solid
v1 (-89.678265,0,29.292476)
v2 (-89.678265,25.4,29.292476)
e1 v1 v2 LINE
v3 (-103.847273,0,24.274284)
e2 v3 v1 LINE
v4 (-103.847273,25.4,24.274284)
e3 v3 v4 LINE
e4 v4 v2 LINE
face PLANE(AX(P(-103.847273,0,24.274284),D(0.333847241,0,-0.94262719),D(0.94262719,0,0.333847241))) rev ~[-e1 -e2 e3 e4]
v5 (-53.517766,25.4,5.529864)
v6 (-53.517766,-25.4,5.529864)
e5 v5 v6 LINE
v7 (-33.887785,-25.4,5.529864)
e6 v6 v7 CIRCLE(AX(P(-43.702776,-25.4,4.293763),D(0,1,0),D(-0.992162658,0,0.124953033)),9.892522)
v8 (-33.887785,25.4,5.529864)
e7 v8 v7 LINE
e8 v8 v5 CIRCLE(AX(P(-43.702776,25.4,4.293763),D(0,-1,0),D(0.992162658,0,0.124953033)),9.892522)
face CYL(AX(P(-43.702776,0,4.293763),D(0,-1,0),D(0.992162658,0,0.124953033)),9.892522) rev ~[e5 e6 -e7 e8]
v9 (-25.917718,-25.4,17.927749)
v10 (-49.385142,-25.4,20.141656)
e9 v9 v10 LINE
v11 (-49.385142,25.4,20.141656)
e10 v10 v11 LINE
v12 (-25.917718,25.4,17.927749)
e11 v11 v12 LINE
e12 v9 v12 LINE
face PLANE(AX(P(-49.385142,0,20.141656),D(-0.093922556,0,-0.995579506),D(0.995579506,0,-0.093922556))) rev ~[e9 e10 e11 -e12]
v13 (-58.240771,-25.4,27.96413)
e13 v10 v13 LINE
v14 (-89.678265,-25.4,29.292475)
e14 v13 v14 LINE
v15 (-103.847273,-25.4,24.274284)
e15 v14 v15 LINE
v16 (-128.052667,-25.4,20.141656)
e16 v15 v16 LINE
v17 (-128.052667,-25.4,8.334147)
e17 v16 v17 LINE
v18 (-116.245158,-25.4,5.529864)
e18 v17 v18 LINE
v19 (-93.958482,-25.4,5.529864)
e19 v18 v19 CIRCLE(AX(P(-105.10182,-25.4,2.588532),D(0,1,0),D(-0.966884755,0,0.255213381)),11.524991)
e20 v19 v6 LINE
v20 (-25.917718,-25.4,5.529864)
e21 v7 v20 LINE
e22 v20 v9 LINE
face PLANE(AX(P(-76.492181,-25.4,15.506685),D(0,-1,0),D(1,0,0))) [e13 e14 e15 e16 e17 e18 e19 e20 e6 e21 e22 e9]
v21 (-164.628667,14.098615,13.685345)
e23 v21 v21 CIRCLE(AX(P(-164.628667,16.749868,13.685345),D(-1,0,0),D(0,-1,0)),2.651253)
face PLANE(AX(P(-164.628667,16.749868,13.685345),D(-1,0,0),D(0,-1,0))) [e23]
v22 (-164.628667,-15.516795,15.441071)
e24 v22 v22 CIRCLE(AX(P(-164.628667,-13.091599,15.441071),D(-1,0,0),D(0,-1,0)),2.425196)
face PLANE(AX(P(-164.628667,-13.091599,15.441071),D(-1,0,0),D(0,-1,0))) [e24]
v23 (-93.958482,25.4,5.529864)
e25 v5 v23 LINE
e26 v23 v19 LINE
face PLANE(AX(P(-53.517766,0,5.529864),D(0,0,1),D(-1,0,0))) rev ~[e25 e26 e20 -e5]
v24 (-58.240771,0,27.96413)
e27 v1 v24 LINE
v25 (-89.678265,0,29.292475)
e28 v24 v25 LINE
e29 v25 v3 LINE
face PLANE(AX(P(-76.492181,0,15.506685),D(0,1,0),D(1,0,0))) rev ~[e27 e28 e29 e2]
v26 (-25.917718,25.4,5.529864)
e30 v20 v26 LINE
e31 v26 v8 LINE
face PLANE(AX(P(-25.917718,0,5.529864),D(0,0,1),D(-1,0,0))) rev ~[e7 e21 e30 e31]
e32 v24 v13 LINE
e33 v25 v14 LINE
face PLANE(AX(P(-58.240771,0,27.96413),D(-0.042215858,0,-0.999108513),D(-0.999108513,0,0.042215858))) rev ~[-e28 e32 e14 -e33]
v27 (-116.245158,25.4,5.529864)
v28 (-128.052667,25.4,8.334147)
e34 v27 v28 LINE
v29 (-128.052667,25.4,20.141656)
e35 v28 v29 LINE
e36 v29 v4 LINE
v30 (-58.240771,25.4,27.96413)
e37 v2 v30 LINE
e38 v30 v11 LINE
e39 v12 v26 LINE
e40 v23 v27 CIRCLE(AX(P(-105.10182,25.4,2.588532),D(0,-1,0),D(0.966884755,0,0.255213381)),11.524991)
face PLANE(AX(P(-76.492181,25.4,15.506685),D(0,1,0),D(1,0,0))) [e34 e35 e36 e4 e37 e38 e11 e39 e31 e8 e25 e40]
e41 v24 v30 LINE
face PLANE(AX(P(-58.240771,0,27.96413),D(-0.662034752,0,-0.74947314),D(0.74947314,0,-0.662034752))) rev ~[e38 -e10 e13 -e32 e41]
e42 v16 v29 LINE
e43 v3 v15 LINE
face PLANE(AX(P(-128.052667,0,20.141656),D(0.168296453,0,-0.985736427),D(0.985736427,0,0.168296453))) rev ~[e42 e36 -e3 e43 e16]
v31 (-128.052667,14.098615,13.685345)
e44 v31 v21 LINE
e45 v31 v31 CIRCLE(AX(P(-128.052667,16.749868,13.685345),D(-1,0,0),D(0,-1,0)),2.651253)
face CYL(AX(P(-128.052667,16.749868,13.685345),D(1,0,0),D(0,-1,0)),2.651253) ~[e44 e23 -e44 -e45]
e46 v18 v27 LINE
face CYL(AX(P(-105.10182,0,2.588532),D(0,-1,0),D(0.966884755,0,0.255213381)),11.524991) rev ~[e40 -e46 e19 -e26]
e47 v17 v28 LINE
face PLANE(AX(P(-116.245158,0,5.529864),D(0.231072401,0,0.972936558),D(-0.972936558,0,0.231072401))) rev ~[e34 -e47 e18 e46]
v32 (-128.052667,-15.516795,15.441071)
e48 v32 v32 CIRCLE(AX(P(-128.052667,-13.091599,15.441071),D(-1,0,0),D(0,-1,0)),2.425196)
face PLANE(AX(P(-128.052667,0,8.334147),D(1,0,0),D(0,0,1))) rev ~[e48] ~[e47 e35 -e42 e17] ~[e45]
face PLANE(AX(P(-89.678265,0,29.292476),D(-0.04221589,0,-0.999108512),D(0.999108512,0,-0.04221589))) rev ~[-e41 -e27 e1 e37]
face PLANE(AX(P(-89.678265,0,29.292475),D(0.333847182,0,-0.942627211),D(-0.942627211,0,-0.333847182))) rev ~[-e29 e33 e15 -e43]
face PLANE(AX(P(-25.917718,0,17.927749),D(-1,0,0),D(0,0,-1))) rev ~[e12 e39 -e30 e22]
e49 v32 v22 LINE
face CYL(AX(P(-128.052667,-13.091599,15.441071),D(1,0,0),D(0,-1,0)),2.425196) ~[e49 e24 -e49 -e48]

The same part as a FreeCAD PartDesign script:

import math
import FreeCAD as App
import Part
import Sketcher
from FreeCAD import Vector
Q = App.Units.Quantity

doc = App.newDocument("Part")
body = doc.addObject("PartDesign::Body", "Body")

# Sketch on XZ plane
sketch1 = body.newObject("Sketcher::SketchObject", "Sketch")
sketch1.AttachmentSupport = (doc.getObject("XZ_Plane"), [""])
sketch1.MapMode = "FlatFace"
sketch1.addGeometry(Part.ArcOfCircle(Part.Circle(Vector(-105, 3, 0), Vector(0, 0, 1), 12), math.radians(15), math.radians(165)), False)
sketch1.addGeometry(Part.LineSegment(Vector(-94, 6, 0), Vector(-54, 6, 0)), False)
sketch1.addGeometry(Part.ArcOfCircle(Part.Circle(Vector(-44, 4, 0), Vector(0, 0, 1), 10), math.radians(7), math.radians(173)), False)
sketch1.addGeometry(Part.LineSegment(Vector(-34, 6, 0), Vector(-26, 6, 0)), False)
sketch1.addGeometry(Part.LineSegment(Vector(-26, 6, 0), Vector(-26, 18, 0)), False)
sketch1.addGeometry(Part.LineSegment(Vector(-26, 18, 0), Vector(-49, 20, 0)), False)
sketch1.addGeometry(Part.LineSegment(Vector(-49, 20, 0), Vector(-58, 28, 0)), False)
sketch1.addGeometry(Part.LineSegment(Vector(-58, 28, 0), Vector(-90, 29, 0)), False)
sketch1.addGeometry(Part.LineSegment(Vector(-90, 29, 0), Vector(-104, 24, 0)), False)
sketch1.addGeometry(Part.LineSegment(Vector(-104, 24, 0), Vector(-128, 20, 0)), False)
sketch1.addGeometry(Part.LineSegment(Vector(-128, 20, 0), Vector(-128, 8, 0)), False)
sketch1.addGeometry(Part.LineSegment(Vector(-128, 8, 0), Vector(-116, 6, 0)), False)
sketch1.addConstraint(Sketcher.Constraint("Coincident", 0, 1, 1, 1))
sketch1.addConstraint(Sketcher.Constraint("Coincident", 1, 2, 2, 2))
sketch1.addConstraint(Sketcher.Constraint("Coincident", 2, 1, 3, 1))
sketch1.addConstraint(Sketcher.Constraint("Coincident", 3, 2, 4, 1))
sketch1.addConstraint(Sketcher.Constraint("Coincident", 4, 2, 5, 1))
sketch1.addConstraint(Sketcher.Constraint("Coincident", 5, 2, 6, 1))
sketch1.addConstraint(Sketcher.Constraint("Coincident", 6, 2, 7, 1))
sketch1.addConstraint(Sketcher.Constraint("Coincident", 7, 2, 8, 1))
sketch1.addConstraint(Sketcher.Constraint("Coincident", 8, 2, 9, 1))
sketch1.addConstraint(Sketcher.Constraint("Coincident", 9, 2, 10, 1))
sketch1.addConstraint(Sketcher.Constraint("Coincident", 10, 2, 11, 1))
sketch1.addConstraint(Sketcher.Constraint("Coincident", 11, 2, 0, 2))
sketch1.addConstraint(Sketcher.Constraint("Horizontal", 1))
sketch1.addConstraint(Sketcher.Constraint("Horizontal", 3))
sketch1.addConstraint(Sketcher.Constraint("Vertical", 4))
sketch1.addConstraint(Sketcher.Constraint("Vertical", 10))
sketch1.addConstraint(Sketcher.Constraint("Horizontal", 1, 2, 2, 1))
sketch1.addConstraint(Sketcher.Constraint("Horizontal", 5, 2, 9, 2))
sketch1.addConstraint(Sketcher.Constraint("Horizontal", 3, 2, 11, 2))
sketch1.addConstraint(Sketcher.Constraint("Radius", 0, 11.524991))
sketch1.addConstraint(Sketcher.Constraint("Radius", 2, 9.892522))
sketch1.addConstraint(Sketcher.Constraint("DistanceX", 9, 2, 6, 2, Q("2.7484998 in")))
sketch1.addConstraint(Sketcher.Constraint("Distance", 8, 15.031401))
sketch1.addConstraint(Sketcher.Constraint("DistanceY", 10, 2, 10, 1, 11.807509))
sketch1.addConstraint(Sketcher.Constraint("DistanceY", 2, 3, 0, 1, 1.236101))
sketch1.addConstraint(Sketcher.Constraint("DistanceX", 0, 3, 3, 2, 79.184102))
sketch1.addConstraint(Sketcher.Constraint("DistanceX", 7, 2, 1, 2, 36.160499))
sketch1.addConstraint(Sketcher.Constraint("Distance", 11, 12.13595))
sketch1.addConstraint(Sketcher.Constraint("DistanceX", 1, 1, 1, 2, 40.440716))
sketch1.addConstraint(Sketcher.Constraint("DistanceX", 3, 1, 3, 2, 7.970067))
sketch1.addConstraint(Sketcher.Constraint("DistanceY", 4, 1, 4, 2, 12.397885))
sketch1.addConstraint(Sketcher.Constraint("DistanceX", 0, 3, -1, 1, 105.10182))
sketch1.addConstraint(Sketcher.Constraint("DistanceY", -1, 1, 4, 2, 17.927749))
sketch1.addConstraint(Sketcher.Constraint("DistanceX", 6, 2, -1, 1, 58.240771))
sketch1.addConstraint(Sketcher.Constraint("DistanceY", -1, 1, 6, 2, 27.96413))
sketch1.addConstraint(Sketcher.Constraint("DistanceX", 6, 2, 5, 2, 8.855629))
sketch1.addConstraint(Sketcher.Constraint("DistanceY", 0, 1, 7, 2, 23.762611))
sketch1.addConstraint(Sketcher.Constraint("DistanceX", 8, 2, 7, 2, 14.169008))
pad1 = body.newObject("PartDesign::Pad", "Pad")
pad1.Profile = sketch1
pad1.Length = Q("1 in")

# Sketch on XZ plane
sketch2 = body.newObject("Sketcher::SketchObject", "Sketch001")
sketch2.AttachmentSupport = (doc.getObject("XZ_Plane"), [""])
sketch2.MapMode = "FlatFace"
sketch2.addGeometry(Part.ArcOfCircle(Part.Circle(Vector(-105, 3, 0), Vector(0, 0, 1), 12), math.radians(15), math.radians(165)), False)
sketch2.addGeometry(Part.LineSegment(Vector(-116, 6, 0), Vector(-128, 8, 0)), False)
sketch2.addGeometry(Part.LineSegment(Vector(-128, 8, 0), Vector(-128, 20, 0)), False)
sketch2.addGeometry(Part.LineSegment(Vector(-128, 20, 0), Vector(-104, 24, 0)), False)
sketch2.addGeometry(Part.LineSegment(Vector(-104, 24, 0), Vector(-90, 29, 0)), False)
sketch2.addGeometry(Part.LineSegment(Vector(-90, 29, 0), Vector(-58, 28, 0)), False)
sketch2.addGeometry(Part.LineSegment(Vector(-58, 28, 0), Vector(-49, 20, 0)), False)
sketch2.addGeometry(Part.LineSegment(Vector(-49, 20, 0), Vector(-26, 18, 0)), False)
sketch2.addGeometry(Part.LineSegment(Vector(-26, 18, 0), Vector(-26, 6, 0)), False)
sketch2.addGeometry(Part.LineSegment(Vector(-26, 6, 0), Vector(-34, 6, 0)), False)
sketch2.addGeometry(Part.ArcOfCircle(Part.Circle(Vector(-44, 4, 0), Vector(0, 0, 1), 10), math.radians(7), math.radians(173)), False)
sketch2.addGeometry(Part.LineSegment(Vector(-54, 6, 0), Vector(-94, 6, 0)), False)
sketch2.addConstraint(Sketcher.Constraint("Coincident", 0, 2, 1, 1))
sketch2.addConstraint(Sketcher.Constraint("Coincident", 1, 2, 2, 1))
sketch2.addConstraint(Sketcher.Constraint("Coincident", 2, 2, 3, 1))
sketch2.addConstraint(Sketcher.Constraint("Coincident", 3, 2, 4, 1))
sketch2.addConstraint(Sketcher.Constraint("Coincident", 4, 2, 5, 1))
sketch2.addConstraint(Sketcher.Constraint("Coincident", 5, 2, 6, 1))
sketch2.addConstraint(Sketcher.Constraint("Coincident", 6, 2, 7, 1))
sketch2.addConstraint(Sketcher.Constraint("Coincident", 7, 2, 8, 1))
sketch2.addConstraint(Sketcher.Constraint("Coincident", 8, 2, 9, 1))
sketch2.addConstraint(Sketcher.Constraint("Coincident", 9, 2, 10, 1))
sketch2.addConstraint(Sketcher.Constraint("Coincident", 10, 2, 11, 1))
sketch2.addConstraint(Sketcher.Constraint("Coincident", 11, 2, 0, 1))
sketch2.addConstraint(Sketcher.Constraint("Vertical", 2))
sketch2.addConstraint(Sketcher.Constraint("Vertical", 8))
sketch2.addConstraint(Sketcher.Constraint("Horizontal", 9))
sketch2.addConstraint(Sketcher.Constraint("Horizontal", 11))
sketch2.addConstraint(Sketcher.Constraint("Horizontal", 2, 2, 6, 2))
sketch2.addConstraint(Sketcher.Constraint("Horizontal", 0, 2, 8, 2))
sketch2.addConstraint(Sketcher.Constraint("Horizontal", 9, 2, 10, 2))
sketch2.addConstraint(Sketcher.Constraint("Radius", 0, 11.524991))
sketch2.addConstraint(Sketcher.Constraint("Radius", 10, 9.892522))
sketch2.addConstraint(Sketcher.Constraint("Distance", 4, 15.031402))
sketch2.addConstraint(Sketcher.Constraint("DistanceY", 2, 1, 2, 2, 11.807509))
sketch2.addConstraint(Sketcher.Constraint("DistanceY", 10, 3, 0, 2, 1.236101))
sketch2.addConstraint(Sketcher.Constraint("Distance", 1, 12.13595))
sketch2.addConstraint(Sketcher.Constraint("DistanceX", 9, 2, 9, 1, 7.970067))
sketch2.addConstraint(Sketcher.Constraint("DistanceX", 11, 2, 11, 1, 40.440716))
sketch2.addConstraint(Sketcher.Constraint("DistanceY", 8, 2, 8, 1, 12.397885))
sketch2.addConstraint(Sketcher.Constraint("DistanceX", 0, 3, -1, 1, 105.10182))
sketch2.addConstraint(Sketcher.Constraint("DistanceX", 5, 2, -1, 1, 58.240771))
sketch2.addConstraint(Sketcher.Constraint("DistanceY", -1, 1, 5, 2, 27.96413))
sketch2.addConstraint(Sketcher.Constraint("DistanceX", 7, 2, -1, 1, 25.917718))
sketch2.addConstraint(Sketcher.Constraint("DistanceY", -1, 1, 7, 2, 17.927749))
sketch2.addConstraint(Sketcher.Constraint("DistanceX", 1, 2, 0, 2, 11.807509))
sketch2.addConstraint(Sketcher.Constraint("DistanceY", 0, 3, 3, 2, 21.685752))
sketch2.addConstraint(Sketcher.Constraint("DistanceX", 3, 2, 4, 2, 14.169008))
sketch2.addConstraint(Sketcher.Constraint("DistanceX", 5, 2, 6, 2, 8.855629))
sketch2.addConstraint(Sketcher.Constraint("DistanceX", 3, 2, 6, 2, 54.462131))
pad2 = body.newObject("PartDesign::Pad", "Pad001")
pad2.Profile = sketch2
pad2.Length = Q("1 in")
pad2.Reversed = True

# Sketch on YZ plane
sketch3 = body.newObject("Sketcher::SketchObject", "Sketch002")
sketch3.AttachmentSupport = (doc.getObject("YZ_Plane"), [""])
sketch3.MapMode = "FlatFace"
sketch3.AttachmentOffset = App.Placement(Vector(0, 0, -128.052667), App.Rotation())
sketch3.addGeometry(Part.Circle(Vector(16.7, 13.7, 0), Vector(0, 0, 1), 2.7), False)
sketch3.addGeometry(Part.Circle(Vector(-13.1, 15.4, 0), Vector(0, 0, 1), 2.4), False)
sketch3.addConstraint(Sketcher.Constraint("Diameter", 0, 5.302506))
sketch3.addConstraint(Sketcher.Constraint("Diameter", 1, 4.850392))
sketch3.addConstraint(Sketcher.Constraint("DistanceX", 1, 3, -1, 1, 13.091599))
sketch3.addConstraint(Sketcher.Constraint("DistanceY", -1, 1, 1, 3, 15.441071))
sketch3.addConstraint(Sketcher.Constraint("DistanceX", -1, 1, 0, 3, 16.749868))
sketch3.addConstraint(Sketcher.Constraint("DistanceY", -1, 1, 0, 3, 13.685345))
pad3 = body.newObject("PartDesign::Pad", "Pad002")
pad3.Profile = sketch3
pad3.Length = Q("1.44 in")
pad3.Reversed = True

doc.recompute()
